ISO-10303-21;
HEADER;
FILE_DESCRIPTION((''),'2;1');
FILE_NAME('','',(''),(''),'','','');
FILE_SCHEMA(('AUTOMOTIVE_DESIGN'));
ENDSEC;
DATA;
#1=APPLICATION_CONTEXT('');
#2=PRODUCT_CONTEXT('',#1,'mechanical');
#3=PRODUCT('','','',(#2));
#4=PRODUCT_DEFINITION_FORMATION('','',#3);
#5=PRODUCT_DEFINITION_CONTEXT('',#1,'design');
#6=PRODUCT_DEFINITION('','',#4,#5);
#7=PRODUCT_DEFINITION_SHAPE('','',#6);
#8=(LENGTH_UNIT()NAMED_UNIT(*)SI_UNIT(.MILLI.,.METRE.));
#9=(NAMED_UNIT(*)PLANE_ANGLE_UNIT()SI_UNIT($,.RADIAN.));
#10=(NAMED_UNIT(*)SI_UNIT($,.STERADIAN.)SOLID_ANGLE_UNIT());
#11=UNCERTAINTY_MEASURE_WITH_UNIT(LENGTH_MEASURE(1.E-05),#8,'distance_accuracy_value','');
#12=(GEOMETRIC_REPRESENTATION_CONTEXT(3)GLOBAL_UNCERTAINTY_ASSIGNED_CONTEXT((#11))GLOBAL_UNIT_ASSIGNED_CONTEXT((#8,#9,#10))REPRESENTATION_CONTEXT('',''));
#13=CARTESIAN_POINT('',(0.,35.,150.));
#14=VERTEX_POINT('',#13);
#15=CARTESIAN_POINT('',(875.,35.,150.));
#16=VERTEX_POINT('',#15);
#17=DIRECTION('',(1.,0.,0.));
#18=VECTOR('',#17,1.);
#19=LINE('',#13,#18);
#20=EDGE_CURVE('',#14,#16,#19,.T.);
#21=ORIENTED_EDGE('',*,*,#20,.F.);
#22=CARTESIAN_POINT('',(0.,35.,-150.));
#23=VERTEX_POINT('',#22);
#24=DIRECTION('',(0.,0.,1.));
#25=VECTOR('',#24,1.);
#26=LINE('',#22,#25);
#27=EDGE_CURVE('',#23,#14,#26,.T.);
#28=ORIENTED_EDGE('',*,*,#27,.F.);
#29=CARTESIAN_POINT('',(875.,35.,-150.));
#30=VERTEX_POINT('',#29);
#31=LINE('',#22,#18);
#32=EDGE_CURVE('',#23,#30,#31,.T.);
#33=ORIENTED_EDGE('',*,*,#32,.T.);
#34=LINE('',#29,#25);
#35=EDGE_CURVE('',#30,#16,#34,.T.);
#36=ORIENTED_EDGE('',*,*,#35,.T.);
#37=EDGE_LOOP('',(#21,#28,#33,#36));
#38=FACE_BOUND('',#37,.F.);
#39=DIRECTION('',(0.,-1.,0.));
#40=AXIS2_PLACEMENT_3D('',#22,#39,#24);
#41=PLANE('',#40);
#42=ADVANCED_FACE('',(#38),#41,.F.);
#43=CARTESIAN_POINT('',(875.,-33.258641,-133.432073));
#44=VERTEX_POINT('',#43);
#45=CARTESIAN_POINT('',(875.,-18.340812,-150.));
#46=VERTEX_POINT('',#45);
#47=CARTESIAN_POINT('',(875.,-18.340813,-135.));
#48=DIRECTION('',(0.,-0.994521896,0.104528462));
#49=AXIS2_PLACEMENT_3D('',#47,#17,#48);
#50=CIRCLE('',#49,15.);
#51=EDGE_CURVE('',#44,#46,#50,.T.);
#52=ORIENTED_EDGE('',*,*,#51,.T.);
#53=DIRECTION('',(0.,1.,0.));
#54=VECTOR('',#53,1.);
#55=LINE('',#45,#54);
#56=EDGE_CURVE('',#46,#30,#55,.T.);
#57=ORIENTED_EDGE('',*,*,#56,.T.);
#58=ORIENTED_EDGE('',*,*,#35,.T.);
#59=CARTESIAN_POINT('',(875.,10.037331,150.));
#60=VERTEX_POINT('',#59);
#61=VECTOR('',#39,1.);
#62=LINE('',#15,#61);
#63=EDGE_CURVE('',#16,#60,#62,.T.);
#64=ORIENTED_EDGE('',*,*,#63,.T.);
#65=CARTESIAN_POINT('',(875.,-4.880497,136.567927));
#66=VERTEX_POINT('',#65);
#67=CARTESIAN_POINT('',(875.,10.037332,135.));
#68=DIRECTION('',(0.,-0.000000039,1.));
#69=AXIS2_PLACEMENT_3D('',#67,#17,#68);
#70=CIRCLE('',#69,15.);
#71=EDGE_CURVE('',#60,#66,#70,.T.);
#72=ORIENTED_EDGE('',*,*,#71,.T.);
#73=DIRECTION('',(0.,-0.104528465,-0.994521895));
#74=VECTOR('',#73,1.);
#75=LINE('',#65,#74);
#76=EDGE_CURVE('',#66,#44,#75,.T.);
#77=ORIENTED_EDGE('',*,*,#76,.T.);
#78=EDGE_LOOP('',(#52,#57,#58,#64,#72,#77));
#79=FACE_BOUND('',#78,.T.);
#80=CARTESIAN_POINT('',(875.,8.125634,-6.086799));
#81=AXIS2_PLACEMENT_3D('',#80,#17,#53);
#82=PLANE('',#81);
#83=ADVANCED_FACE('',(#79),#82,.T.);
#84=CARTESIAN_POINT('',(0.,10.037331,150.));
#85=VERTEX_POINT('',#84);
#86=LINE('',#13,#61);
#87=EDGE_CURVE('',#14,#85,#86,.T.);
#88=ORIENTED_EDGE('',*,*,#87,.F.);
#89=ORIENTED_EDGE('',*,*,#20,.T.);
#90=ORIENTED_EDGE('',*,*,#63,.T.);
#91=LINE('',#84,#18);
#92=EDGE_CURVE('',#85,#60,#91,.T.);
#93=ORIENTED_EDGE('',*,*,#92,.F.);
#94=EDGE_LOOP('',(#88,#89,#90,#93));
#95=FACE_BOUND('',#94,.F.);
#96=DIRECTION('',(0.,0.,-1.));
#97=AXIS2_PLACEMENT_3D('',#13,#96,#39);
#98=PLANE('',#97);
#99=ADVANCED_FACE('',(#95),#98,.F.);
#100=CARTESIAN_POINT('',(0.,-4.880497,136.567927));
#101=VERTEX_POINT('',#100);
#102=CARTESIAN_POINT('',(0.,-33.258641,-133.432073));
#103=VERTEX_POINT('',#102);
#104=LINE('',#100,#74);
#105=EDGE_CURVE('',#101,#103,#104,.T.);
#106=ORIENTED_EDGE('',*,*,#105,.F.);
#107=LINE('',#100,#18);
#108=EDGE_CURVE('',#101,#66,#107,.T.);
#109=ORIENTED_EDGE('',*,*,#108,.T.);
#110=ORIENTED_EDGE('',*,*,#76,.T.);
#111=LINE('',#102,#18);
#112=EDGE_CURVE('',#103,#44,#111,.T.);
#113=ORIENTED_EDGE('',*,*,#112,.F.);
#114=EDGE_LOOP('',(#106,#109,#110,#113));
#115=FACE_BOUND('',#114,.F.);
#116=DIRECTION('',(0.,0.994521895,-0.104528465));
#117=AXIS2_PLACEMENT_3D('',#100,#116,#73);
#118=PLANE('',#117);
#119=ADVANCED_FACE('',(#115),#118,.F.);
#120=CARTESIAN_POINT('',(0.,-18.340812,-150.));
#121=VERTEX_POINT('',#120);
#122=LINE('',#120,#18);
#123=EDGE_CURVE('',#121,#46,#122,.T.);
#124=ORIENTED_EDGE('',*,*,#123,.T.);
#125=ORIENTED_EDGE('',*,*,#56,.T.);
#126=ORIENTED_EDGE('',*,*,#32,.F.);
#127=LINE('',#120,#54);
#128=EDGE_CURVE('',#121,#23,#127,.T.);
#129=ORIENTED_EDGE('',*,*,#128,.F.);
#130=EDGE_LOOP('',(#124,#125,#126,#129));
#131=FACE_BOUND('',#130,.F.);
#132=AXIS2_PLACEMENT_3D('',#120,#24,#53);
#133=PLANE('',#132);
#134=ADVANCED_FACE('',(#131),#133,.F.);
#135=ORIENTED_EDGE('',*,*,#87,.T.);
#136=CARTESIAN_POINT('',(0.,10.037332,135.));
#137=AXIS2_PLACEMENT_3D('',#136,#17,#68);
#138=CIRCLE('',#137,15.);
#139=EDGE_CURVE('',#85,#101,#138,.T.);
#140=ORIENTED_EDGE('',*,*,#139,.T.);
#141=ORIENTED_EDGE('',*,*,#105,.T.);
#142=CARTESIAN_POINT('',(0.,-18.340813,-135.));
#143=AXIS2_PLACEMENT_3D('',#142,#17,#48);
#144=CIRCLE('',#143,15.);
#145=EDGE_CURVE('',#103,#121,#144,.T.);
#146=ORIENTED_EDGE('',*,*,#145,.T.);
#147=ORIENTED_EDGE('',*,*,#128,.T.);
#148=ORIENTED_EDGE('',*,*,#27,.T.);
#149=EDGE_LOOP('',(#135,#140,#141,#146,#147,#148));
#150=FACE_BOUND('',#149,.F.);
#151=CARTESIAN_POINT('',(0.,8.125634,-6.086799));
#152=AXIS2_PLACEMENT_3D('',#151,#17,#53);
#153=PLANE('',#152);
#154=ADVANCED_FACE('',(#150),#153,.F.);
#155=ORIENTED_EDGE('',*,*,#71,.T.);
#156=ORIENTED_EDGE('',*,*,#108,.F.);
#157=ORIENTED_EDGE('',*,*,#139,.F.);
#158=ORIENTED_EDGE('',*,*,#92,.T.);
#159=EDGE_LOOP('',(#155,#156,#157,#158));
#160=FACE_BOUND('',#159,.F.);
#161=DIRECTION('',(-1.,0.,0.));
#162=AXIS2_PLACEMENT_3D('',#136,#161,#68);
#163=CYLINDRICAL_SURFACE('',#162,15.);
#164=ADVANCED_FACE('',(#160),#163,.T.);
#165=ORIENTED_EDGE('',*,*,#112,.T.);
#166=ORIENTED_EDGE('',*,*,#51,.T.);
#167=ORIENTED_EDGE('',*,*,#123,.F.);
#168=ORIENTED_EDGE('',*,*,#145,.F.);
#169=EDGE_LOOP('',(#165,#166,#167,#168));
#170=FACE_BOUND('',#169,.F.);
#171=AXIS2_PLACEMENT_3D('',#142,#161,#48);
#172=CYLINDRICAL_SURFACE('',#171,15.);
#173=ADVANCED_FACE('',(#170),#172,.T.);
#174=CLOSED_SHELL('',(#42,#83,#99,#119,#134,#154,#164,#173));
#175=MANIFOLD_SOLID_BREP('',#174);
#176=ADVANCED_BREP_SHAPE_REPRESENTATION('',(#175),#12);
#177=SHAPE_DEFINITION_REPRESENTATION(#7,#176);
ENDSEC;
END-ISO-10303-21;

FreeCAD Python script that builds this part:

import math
import FreeCAD as App
import Part
import Sketcher
from FreeCAD import Vector
Q = App.Units.Quantity

doc = App.newDocument("Part")
body = doc.addObject("PartDesign::Body", "Body")

# Sketch on YZ plane
sketch1 = body.newObject("Sketcher::SketchObject", "Sketch")
sketch1.AttachmentSupport = (doc.getObject("YZ_Plane"), [""])
sketch1.MapMode = "FlatFace"
sketch1.addGeometry(Part.LineSegment(Vector(35, 150, 0), Vector(10.037331, 150, 0)), False)
sketch1.addGeometry(Part.ArcOfCircle(Part.Circle(Vector(10.037332, 135, 0), Vector(0, 0, 1), 15), math.radians(90.000002), math.radians(173.999999)), False)
sketch1.addGeometry(Part.LineSegment(Vector(-4.880497, 136.567927, 0), Vector(-33.258641, -133.432073, 0)), False)
sketch1.addGeometry(Part.ArcOfCircle(Part.Circle(Vector(-18.340813, -135, 0), Vector(0, 0, 1), 15), math.radians(174), math.radians(270.000002)), False)
sketch1.addGeometry(Part.LineSegment(Vector(-18.340812, -150, 0), Vector(35, -150, 0)), False)
sketch1.addGeometry(Part.LineSegment(Vector(35, -150, 0), Vector(35, 150, 0)), False)
sketch1.addConstraint(Sketcher.Constraint("Tangent", 0, 2, 1, 1))
sketch1.addConstraint(Sketcher.Constraint("Tangent", 1, 2, 2, 1))
sketch1.addConstraint(Sketcher.Constraint("Tangent", 2, 2, 3, 1))
sketch1.addConstraint(Sketcher.Constraint("Tangent", 3, 2, 4, 1))
sketch1.addConstraint(Sketcher.Constraint("Coincident", 4, 2, 5, 1))
sketch1.addConstraint(Sketcher.Constraint("Coincident", 5, 2, 0, 1))
sketch1.addConstraint(Sketcher.Constraint("Horizontal", 0))
sketch1.addConstraint(Sketcher.Constraint("Horizontal", 4))
sketch1.addConstraint(Sketcher.Constraint("Vertical", 5))
sketch1.addConstraint(Sketcher.Constraint("Equal", 1, 3))
sketch1.addConstraint(Sketcher.Constraint("Radius", 1, 15.0))
sketch1.addConstraint(Sketcher.Constraint("DistanceY", 5, 1, 5, 2, 300.0))
sketch1.addConstraint(Sketcher.Constraint("Angle", 2, Q("-96 deg")))
sketch1.addConstraint(Sketcher.Constraint("DistanceY", -1, 1, 1, 3, 135.0))
sketch1.addConstraint(Sketcher.Constraint("DistanceX", -1, 1, 4, 2, 35.0))
sketch1.addConstraint(Sketcher.Constraint("DistanceX", 0, 2, 0, 1, 24.962669))
pad1 = body.newObject("PartDesign::Pad", "Pad")
pad1.Profile = sketch1
pad1.Length = 875

doc.recompute()
